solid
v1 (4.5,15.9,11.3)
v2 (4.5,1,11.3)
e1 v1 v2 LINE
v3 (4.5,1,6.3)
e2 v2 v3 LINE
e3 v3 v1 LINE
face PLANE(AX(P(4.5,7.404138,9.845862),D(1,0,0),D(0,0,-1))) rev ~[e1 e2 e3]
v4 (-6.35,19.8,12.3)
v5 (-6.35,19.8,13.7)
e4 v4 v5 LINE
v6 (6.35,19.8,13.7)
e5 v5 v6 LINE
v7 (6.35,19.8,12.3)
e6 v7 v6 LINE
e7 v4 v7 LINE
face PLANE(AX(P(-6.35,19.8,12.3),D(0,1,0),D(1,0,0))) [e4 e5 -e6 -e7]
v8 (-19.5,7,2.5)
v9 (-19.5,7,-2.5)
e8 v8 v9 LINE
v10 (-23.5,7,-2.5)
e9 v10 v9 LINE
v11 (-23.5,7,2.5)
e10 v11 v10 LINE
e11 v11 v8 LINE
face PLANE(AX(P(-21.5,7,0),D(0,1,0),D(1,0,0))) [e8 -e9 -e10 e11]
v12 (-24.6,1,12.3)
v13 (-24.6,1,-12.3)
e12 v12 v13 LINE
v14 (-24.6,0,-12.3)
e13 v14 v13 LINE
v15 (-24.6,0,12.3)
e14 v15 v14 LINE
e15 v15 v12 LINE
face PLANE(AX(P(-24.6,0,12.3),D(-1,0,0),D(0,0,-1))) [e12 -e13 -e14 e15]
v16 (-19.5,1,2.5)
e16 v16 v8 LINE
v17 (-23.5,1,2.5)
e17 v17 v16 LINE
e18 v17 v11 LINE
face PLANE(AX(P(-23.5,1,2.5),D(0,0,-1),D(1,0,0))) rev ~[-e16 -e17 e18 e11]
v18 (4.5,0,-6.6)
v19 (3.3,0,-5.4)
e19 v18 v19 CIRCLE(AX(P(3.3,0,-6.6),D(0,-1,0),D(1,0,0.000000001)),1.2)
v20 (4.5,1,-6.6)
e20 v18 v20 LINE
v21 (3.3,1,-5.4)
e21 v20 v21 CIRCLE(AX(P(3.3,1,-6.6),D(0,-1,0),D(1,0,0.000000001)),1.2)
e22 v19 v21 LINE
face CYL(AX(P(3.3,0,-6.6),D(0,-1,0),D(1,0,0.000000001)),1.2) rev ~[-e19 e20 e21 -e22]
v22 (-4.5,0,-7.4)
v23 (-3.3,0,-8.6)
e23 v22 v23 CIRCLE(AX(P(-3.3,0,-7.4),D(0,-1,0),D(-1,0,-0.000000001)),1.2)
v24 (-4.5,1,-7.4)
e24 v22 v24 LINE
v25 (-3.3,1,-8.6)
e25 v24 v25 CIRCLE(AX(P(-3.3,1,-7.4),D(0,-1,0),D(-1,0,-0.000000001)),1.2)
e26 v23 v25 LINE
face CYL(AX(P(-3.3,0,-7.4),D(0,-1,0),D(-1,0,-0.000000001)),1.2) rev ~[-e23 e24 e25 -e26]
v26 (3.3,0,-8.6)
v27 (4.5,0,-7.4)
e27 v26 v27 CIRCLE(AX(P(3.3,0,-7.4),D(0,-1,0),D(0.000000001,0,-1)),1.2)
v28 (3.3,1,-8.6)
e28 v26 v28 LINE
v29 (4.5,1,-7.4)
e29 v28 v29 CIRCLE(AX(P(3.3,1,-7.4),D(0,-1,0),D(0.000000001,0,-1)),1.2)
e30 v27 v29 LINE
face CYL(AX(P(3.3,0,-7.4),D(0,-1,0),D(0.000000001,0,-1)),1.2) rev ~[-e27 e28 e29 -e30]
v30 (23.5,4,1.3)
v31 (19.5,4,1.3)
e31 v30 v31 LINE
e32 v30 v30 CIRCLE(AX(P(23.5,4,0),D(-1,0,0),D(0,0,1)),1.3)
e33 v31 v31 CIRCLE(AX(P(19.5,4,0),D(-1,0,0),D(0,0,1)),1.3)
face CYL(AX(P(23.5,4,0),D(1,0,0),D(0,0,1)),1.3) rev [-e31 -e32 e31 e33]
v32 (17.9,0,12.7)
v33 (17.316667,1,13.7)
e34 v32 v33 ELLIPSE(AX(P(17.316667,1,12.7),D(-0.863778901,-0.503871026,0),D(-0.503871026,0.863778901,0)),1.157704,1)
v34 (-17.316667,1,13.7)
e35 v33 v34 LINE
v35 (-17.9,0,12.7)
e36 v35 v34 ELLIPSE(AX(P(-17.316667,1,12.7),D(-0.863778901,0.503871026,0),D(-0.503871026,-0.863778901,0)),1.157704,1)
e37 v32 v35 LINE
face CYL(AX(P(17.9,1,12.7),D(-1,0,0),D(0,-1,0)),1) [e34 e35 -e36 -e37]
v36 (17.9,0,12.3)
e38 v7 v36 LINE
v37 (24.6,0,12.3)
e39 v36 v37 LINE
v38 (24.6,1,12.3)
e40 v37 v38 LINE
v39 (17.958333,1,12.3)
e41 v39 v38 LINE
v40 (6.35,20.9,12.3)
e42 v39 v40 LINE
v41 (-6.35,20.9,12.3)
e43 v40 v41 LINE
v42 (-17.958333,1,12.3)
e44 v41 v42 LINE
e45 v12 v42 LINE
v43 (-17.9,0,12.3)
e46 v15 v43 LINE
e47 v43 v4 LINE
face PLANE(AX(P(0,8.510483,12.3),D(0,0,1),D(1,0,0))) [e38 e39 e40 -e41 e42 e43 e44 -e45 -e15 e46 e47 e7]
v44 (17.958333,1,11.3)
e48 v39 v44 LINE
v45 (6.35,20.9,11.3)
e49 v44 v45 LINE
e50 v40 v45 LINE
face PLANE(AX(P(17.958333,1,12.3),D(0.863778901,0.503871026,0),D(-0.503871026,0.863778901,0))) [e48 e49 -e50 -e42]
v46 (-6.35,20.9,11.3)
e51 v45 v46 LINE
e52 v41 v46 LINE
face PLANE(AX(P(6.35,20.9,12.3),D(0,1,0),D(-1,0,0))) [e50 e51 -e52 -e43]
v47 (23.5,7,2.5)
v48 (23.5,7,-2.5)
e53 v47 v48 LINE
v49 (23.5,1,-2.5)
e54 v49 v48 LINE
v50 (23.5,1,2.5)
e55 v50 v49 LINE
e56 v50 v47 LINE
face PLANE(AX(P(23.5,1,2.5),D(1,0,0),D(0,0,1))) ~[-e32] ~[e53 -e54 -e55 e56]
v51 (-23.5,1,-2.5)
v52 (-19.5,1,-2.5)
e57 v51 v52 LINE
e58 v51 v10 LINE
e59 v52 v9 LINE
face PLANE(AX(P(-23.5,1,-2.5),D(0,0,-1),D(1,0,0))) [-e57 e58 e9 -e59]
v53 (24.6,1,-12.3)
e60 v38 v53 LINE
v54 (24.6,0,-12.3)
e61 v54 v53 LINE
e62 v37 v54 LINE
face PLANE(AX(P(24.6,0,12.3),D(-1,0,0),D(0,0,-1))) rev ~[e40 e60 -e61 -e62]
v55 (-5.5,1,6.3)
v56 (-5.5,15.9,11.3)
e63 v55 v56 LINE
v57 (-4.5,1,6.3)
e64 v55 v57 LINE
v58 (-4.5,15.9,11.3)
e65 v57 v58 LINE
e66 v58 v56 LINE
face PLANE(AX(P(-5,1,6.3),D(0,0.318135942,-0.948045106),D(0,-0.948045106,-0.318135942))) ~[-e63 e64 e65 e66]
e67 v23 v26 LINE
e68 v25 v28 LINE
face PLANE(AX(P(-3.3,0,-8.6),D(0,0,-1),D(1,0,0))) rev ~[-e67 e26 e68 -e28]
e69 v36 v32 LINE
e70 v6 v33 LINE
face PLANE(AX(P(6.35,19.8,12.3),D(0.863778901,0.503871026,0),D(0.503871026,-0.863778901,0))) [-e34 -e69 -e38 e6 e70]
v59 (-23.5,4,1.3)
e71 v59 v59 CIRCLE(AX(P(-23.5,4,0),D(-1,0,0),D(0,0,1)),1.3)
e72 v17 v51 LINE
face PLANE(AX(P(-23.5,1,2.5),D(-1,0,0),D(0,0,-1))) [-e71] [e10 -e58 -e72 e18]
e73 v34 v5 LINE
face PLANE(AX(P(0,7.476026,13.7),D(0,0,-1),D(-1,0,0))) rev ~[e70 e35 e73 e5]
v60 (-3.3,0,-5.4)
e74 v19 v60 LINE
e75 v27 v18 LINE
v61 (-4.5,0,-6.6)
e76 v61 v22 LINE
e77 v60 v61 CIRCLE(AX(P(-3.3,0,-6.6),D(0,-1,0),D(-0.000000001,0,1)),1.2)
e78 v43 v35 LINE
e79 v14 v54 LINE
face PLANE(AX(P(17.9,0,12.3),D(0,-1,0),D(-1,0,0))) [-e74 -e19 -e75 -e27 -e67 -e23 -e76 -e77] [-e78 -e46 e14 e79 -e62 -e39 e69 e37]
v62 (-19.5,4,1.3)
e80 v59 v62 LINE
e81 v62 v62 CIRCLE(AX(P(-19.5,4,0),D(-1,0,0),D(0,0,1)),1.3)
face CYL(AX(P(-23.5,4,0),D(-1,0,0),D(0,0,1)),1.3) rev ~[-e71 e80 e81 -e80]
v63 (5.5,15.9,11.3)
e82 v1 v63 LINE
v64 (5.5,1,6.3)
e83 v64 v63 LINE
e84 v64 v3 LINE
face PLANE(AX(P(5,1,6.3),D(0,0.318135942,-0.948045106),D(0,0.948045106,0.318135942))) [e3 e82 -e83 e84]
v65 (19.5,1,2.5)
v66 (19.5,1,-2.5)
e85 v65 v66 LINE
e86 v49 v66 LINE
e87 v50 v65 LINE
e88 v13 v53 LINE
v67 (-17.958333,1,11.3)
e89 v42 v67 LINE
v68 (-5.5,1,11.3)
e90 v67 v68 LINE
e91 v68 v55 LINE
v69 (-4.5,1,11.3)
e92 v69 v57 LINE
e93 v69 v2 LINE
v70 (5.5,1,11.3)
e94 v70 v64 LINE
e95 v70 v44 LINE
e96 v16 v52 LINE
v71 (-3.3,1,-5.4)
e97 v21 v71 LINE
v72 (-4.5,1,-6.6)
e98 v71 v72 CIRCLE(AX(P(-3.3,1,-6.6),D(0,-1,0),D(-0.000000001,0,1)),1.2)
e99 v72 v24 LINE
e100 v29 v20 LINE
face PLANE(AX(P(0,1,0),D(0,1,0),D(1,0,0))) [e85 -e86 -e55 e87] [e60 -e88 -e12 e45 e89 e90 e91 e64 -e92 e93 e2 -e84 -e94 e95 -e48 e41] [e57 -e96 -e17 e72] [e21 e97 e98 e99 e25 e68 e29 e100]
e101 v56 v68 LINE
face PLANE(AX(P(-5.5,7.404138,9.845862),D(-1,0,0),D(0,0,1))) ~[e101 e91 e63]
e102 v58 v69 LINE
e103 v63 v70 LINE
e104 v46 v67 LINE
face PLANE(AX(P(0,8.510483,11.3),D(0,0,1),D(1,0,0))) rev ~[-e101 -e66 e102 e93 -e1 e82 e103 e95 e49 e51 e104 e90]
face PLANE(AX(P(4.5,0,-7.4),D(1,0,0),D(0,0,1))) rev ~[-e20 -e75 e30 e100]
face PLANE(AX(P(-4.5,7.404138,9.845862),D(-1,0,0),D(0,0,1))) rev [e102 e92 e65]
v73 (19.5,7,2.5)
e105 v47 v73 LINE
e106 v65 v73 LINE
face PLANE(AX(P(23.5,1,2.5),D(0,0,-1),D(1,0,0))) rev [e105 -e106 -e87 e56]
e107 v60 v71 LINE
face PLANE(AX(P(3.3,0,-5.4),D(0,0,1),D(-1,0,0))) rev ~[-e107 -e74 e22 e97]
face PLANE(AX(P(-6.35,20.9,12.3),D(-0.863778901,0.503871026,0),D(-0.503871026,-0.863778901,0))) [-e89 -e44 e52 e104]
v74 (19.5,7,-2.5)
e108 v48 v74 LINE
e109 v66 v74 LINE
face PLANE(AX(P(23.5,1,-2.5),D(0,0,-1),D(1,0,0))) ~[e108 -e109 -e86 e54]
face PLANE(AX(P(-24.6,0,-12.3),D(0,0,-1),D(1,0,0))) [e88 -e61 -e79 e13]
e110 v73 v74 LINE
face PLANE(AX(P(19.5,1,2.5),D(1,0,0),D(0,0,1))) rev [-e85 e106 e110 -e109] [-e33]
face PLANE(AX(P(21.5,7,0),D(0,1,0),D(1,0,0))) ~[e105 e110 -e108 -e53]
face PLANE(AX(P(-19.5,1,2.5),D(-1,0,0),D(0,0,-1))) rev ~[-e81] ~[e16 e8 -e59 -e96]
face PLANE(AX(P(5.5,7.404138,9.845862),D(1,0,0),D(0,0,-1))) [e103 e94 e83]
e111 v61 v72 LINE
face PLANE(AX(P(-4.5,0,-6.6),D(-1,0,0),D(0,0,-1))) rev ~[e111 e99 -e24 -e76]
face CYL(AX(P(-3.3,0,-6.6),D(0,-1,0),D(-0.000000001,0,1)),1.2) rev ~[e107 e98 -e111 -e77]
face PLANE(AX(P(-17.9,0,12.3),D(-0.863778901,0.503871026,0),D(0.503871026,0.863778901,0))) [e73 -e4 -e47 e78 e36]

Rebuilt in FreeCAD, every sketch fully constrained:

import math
import FreeCAD as App
import Part
import Sketcher

V = App.Vector
Q = App.Units.Quantity


def edges_at(feature, points):
    """Names of the edges that pass closest to the given points."""
    edges = feature.Shape.Edges
    near = lambda p: min(range(len(edges)), key=lambda i: edges[i].distToShape(Part.Vertex(*p))[0])
    return sorted({f"Edge{near(p) + 1}" for p in points})


def add_polygon(sketch, points):
    """Adds a closed chain of lines whose ends are joined by coincident constraints."""
    first, n = sketch.GeometryCount, len(points)
    for a, b in zip(points, points[1:] + points[:1]):
        sketch.addGeometry(Part.LineSegment(App.Vector(*a, 0), App.Vector(*b, 0)), False)
    for i in range(n):
        sketch.addConstraint(Sketcher.Constraint("Coincident", first + i, 2, first + (i + 1) % n, 1))

doc = App.newDocument("Part")
params = doc.addObject("Spreadsheet::Sheet", "Params")
for row, (alias, value) in enumerate([
    ("sketch1_width", "49.2 mm"),
    ("sketch1_height", "24.6 mm"),
    ("pad1_length", "1 mm"),
    ("sketch2_width", "35.8 mm"),
    ("sketch2_width2", "12.7 mm"),
    ("pad2_length", "1.4 mm"),
    ("sketch3_width", "12.7 mm"),
    ("pad3_length", "1 mm"),
    ("sketch4_height", "5 mm"),
    ("sketch4_width", "14.9 mm"),
    ("pad4_length", "1 mm"),
    ("sketch5_width", "4 mm"),
    ("sketch5_height", "5 mm"),
    ("pad5_length", "6 mm"),
    ("sketch6_diameter", "2.6 mm"),
    ("pocket1_length", "4 mm"),
    ("fillet_radius", "1 mm"),
    ("sketch7_radius", "1.2 mm"),
    ("sketch7_width", "6.6 mm"),
    ("sketch7_height", "0.8 mm"),
    ("pocket2_length", "1 mm"),
], start=1):
    params.set(f"A{row}", alias)
    params.set(f"B{row}", "=" + value)
    params.setAlias(f"B{row}", alias)

body = doc.addObject("PartDesign::Body", "Body")

# Sketch on XZ plane
sketch1 = body.newObject("Sketcher::SketchObject", "Sketch")
sketch1.AttachmentSupport = (doc.getObject("XZ_Plane"), [""])
sketch1.MapMode = "FlatFace"
add_polygon(sketch1, [(-25, -12), (-25, 12), (25, 12), (25, -12)])  # lines 0-3
sketch1.addConstraint([
    Sketcher.Constraint("Vertical", 0),
    Sketcher.Constraint("Horizontal", 1),
    Sketcher.Constraint("Vertical", 2),
    Sketcher.Constraint("Horizontal", 3),
    Sketcher.Constraint("Symmetric", 0, 2, 2, 2, -1, 1),
    Sketcher.Constraint("DistanceX", 1, 1, 1, 2, Q("49.2 mm")),
    Sketcher.Constraint("DistanceY", 0, 1, 0, 2, Q("24.6 mm")),
])
sketch1.setExpression("Constraints[9]", "Params.sketch1_width")
sketch1.setExpression("Constraints[10]", "Params.sketch1_height")
pad1 = body.newObject("PartDesign::Pad", "Pad")
pad1.Profile = sketch1
pad1.setExpression("Length", "Params.pad1_length")
pad1.Reversed = True

# Sketch on XY plane
sketch2 = body.newObject("Sketcher::SketchObject", "Sketch001")
sketch2.AttachmentSupport = (doc.getObject("XY_Plane"), [""])
sketch2.MapMode = "FlatFace"
sketch2.AttachmentOffset = App.Placement(V(0, 0, 12.3), App.Rotation())
add_polygon(sketch2, [(-18, 0), (18, 0), (6, 20), (-6, 20)])  # lines 0-3
sketch2.addConstraint([
    Sketcher.Constraint("Horizontal", 0),
    Sketcher.Constraint("Horizontal", 2),
    Sketcher.Constraint("Symmetric", 0, 2, 3, 2, -1, 1),
    Sketcher.Constraint("Equal", 1, 3),
    Sketcher.Constraint("DistanceX", 0, 1, 0, 2, Q("35.8 mm")),
    Sketcher.Constraint("DistanceX", 2, 2, 2, 1, Q("12.7 mm")),
    Sketcher.Constraint("DistanceY", -1, 1, 1, 2, Q("19.8 mm")),
])
sketch2.setExpression("Constraints[8]", "Params.sketch2_width")
sketch2.setExpression("Constraints[9]", "Params.sketch2_width2")
pad2 = body.newObject("PartDesign::Pad", "Pad001")
pad2.Profile = sketch2
pad2.setExpression("Length", "Params.pad2_length")

# Sketch on XY plane
sketch3 = body.newObject("Sketcher::SketchObject", "Sketch002")
sketch3.AttachmentSupport = (doc.getObject("XY_Plane"), [""])
sketch3.MapMode = "FlatFace"
sketch3.AttachmentOffset = App.Placement(V(0, 0, 12.3), App.Rotation())
add_polygon(sketch3, [(-18, 1), (-6, 21), (6, 21), (18, 1)])  # lines 0-3
sketch3.addConstraint([
    Sketcher.Constraint("Horizontal", 1),
    Sketcher.Constraint("Horizontal", 3),
    Sketcher.Constraint("Equal", 0, 2),
    Sketcher.Constraint("DistanceX", 1, 1, 1, 2, Q("12.7 mm")),
    Sketcher.Constraint("DistanceY", -1, 1, 2, 2, Q("1 mm")),
    Sketcher.Constraint("DistanceY", -1, 1, 0, 2, Q("20.9 mm")),
    Sketcher.Constraint("DistanceX", 0, 2, -1, 1, Q("6.35 mm")),
    Sketcher.Constraint("DistanceX", 3, 2, 3, 1, Q("35.916667 mm")),
])
sketch3.setExpression("Constraints[7]", "Params.sketch3_width")
pad3 = body.newObject("PartDesign::Pad", "Pad002")
pad3.Profile = sketch3
pad3.setExpression("Length", "Params.pad3_length")
pad3.Reversed = True

# Sketch on YZ plane
sketch4 = body.newObject("Sketcher::SketchObject", "Sketch003")
sketch4.AttachmentSupport = (doc.getObject("YZ_Plane"), [""])
sketch4.MapMode = "FlatFace"
sketch4.AttachmentOffset = App.Placement(V(0, 0, 5), App.Rotation())
add_polygon(sketch4, [(1, 6), (16, 11), (1, 11)])  # lines 0-2
sketch4.addConstraint([
    Sketcher.Constraint("Horizontal", 1),
    Sketcher.Constraint("Vertical", 2),
    Sketcher.Constraint("DistanceY", 2, 2, 2, 1, Q("5 mm")),
    Sketcher.Constraint("DistanceX", 1, 2, 1, 1, Q("14.9 mm")),
    Sketcher.Constraint("DistanceX", -1, 1, 1, 2, Q("1 mm")),
    Sketcher.Constraint("DistanceY", -1, 1, 0, 2, Q("11.3 mm")),
])
sketch4.setExpression("Constraints[5]", "Params.sketch4_height")
sketch4.setExpression("Constraints[6]", "Params.sketch4_width")
pad4 = body.newObject("PartDesign::Pad", "Pad003")
pad4.Profile = sketch4
pad4.setExpression("Length", "Params.pad4_length")
pad4.Midplane = True
doc.recompute()

mirrored = body.newObject("PartDesign::Mirrored", "Mirrored")
mirrored.Originals = [pad4]
mirrored.MirrorPlane = (doc.getObject("YZ_Plane"), [""])
body.Tip = mirrored

# Sketch on XZ plane
sketch5 = body.newObject("Sketcher::SketchObject", "Sketch004")
sketch5.AttachmentSupport = (doc.getObject("XZ_Plane"), [""])
sketch5.MapMode = "FlatFace"
sketch5.AttachmentOffset = App.Placement(V(0, 0, -1), App.Rotation())
add_polygon(sketch5, [(-23.5, -2.5), (-23.5, 2.5), (-19.5, 2.5), (-19.5, -2.5)])  # lines 0-3
sketch5.addConstraint([
    Sketcher.Constraint("Vertical", 0),
    Sketcher.Constraint("Horizontal", 1),
    Sketcher.Constraint("Vertical", 2),
    Sketcher.Constraint("Horizontal", 3),
    Sketcher.Constraint("DistanceX", 1, 1, 1, 2, Q("4 mm")),
    Sketcher.Constraint("DistanceY", 0, 1, 0, 2, Q("5 mm")),
    Sketcher.Constraint("DistanceX", 0, 2, -1, 1, Q("23.5 mm")),
    Sketcher.Constraint("DistanceY", -1, 1, 0, 2, Q("2.5 mm")),
])
sketch5.setExpression("Constraints[8]", "Params.sketch5_width")
sketch5.setExpression("Constraints[9]", "Params.sketch5_height")
pad5 = body.newObject("PartDesign::Pad", "Pad004")
pad5.Profile = sketch5
pad5.setExpression("Length", "Params.pad5_length")
pad5.Reversed = True

# Sketch on YZ plane
sketch6 = body.newObject("Sketcher::SketchObject", "Sketch005")
sketch6.AttachmentSupport = (doc.getObject("YZ_Plane"), [""])
sketch6.MapMode = "FlatFace"
sketch6.AttachmentOffset = App.Placement(V(0, 0, -23.5), App.Rotation())
sketch6.addGeometry(Part.Circle(V(4, 0, 0), V(0, 0, 1), 1.3), False)
sketch6.addConstraint([
    Sketcher.Constraint("PointOnObject", 0, 3, -1),
    Sketcher.Constraint("Diameter", 0, Q("2.6 mm")),
    Sketcher.Constraint("DistanceX", -1, 1, 0, 3, Q("4 mm")),
])
sketch6.setExpression("Constraints[1]", "Params.sketch6_diameter")
pocket1 = body.newObject("PartDesign::Pocket", "Pocket")
pocket1.Profile = sketch6
pocket1.setExpression("Length", "Params.pocket1_length")
pocket1.Reversed = True
doc.recompute()

mirrored2 = body.newObject("PartDesign::Mirrored", "Mirrored001")
mirrored2.Originals = [pad5, pocket1]
mirrored2.MirrorPlane = (doc.getObject("YZ_Plane"), [""])
body.Tip = mirrored2
doc.recompute()

fillet = body.newObject("PartDesign::Fillet", "Fillet")
fillet.Base = (mirrored2, edges_at(mirrored2, [(0, 0, 13.7)]))
fillet.setExpression("Radius", "Params.fillet_radius")

# Sketch on XZ plane
sketch7 = body.newObject("Sketcher::SketchObject", "Sketch006")
sketch7.AttachmentSupport = (doc.getObject("XZ_Plane"), [""])
sketch7.MapMode = "FlatFace"
sketch7.addGeometry([
    Part.LineSegment(V(3.3, -5.4, 0), V(-3.3, -5.4, 0)),  # 0
    Part.ArcOfCircle(Part.Circle(V(-3.3, -6.6, 0), V(0, 0, 1), 1.2), math.radians(90), math.radians(180)),  # 1
    Part.LineSegment(V(-4.5, -6.6, 0), V(-4.5, -7.4, 0)),  # 2
    Part.ArcOfCircle(Part.Circle(V(-3.3, -7.4, 0), V(0, 0, 1), 1.2), math.radians(-180), math.radians(-90)),  # 3
    Part.LineSegment(V(-3.3, -8.6, 0), V(3.3, -8.6, 0)),  # 4
    Part.ArcOfCircle(Part.Circle(V(3.3, -7.4, 0), V(0, 0, 1), 1.2), math.radians(-90), math.radians(0)),  # 5
    Part.LineSegment(V(4.5, -7.4, 0), V(4.5, -6.6, 0)),  # 6
    Part.ArcOfCircle(Part.Circle(V(3.3, -6.6, 0), V(0, 0, 1), 1.2), math.radians(0), math.radians(90)),  # 7
], False)
sketch7.addConstraint([
    Sketcher.Constraint("Tangent", 0, 2, 1, 1),
    Sketcher.Constraint("Tangent", 1, 2, 2, 1),
    Sketcher.Constraint("Tangent", 2, 2, 3, 1),
    Sketcher.Constraint("Tangent", 3, 2, 4, 1),
    Sketcher.Constraint("Tangent", 4, 2, 5, 1),
    Sketcher.Constraint("Tangent", 5, 2, 6, 1),
    Sketcher.Constraint("Tangent", 6, 2, 7, 1),
    Sketcher.Constraint("Tangent", 7, 2, 0, 1),
    Sketcher.Constraint("Horizontal", 0),
    Sketcher.Constraint("Vertical", 2),
    Sketcher.Constraint("Horizontal", 4),
    Sketcher.Constraint("Vertical", 6),
    Sketcher.Constraint("Equal", 1, 3),
    Sketcher.Constraint("Equal", 3, 5),
    Sketcher.Constraint("Equal", 5, 7),
    Sketcher.Constraint("Radius", 1, Q("1.2 mm")),
    Sketcher.Constraint("DistanceX", 0, 2, 0, 1, Q("6.6 mm")),
    Sketcher.Constraint("DistanceY", 2, 2, 2, 1, Q("0.8 mm")),
    Sketcher.Constraint("DistanceX", 1, 3, -1, 1, Q("3.3 mm")),
    Sketcher.Constraint("DistanceY", 1, 3, -1, 1, Q("6.6 mm")),
])
sketch7.setExpression("Constraints[15]", "Params.sketch7_radius")
sketch7.setExpression("Constraints[16]", "Params.sketch7_width")
sketch7.setExpression("Constraints[17]", "Params.sketch7_height")
pocket2 = body.newObject("PartDesign::Pocket", "Pocket001")
pocket2.Profile = sketch7
pocket2.setExpression("Length", "Params.pocket2_length")

doc.recompute()
